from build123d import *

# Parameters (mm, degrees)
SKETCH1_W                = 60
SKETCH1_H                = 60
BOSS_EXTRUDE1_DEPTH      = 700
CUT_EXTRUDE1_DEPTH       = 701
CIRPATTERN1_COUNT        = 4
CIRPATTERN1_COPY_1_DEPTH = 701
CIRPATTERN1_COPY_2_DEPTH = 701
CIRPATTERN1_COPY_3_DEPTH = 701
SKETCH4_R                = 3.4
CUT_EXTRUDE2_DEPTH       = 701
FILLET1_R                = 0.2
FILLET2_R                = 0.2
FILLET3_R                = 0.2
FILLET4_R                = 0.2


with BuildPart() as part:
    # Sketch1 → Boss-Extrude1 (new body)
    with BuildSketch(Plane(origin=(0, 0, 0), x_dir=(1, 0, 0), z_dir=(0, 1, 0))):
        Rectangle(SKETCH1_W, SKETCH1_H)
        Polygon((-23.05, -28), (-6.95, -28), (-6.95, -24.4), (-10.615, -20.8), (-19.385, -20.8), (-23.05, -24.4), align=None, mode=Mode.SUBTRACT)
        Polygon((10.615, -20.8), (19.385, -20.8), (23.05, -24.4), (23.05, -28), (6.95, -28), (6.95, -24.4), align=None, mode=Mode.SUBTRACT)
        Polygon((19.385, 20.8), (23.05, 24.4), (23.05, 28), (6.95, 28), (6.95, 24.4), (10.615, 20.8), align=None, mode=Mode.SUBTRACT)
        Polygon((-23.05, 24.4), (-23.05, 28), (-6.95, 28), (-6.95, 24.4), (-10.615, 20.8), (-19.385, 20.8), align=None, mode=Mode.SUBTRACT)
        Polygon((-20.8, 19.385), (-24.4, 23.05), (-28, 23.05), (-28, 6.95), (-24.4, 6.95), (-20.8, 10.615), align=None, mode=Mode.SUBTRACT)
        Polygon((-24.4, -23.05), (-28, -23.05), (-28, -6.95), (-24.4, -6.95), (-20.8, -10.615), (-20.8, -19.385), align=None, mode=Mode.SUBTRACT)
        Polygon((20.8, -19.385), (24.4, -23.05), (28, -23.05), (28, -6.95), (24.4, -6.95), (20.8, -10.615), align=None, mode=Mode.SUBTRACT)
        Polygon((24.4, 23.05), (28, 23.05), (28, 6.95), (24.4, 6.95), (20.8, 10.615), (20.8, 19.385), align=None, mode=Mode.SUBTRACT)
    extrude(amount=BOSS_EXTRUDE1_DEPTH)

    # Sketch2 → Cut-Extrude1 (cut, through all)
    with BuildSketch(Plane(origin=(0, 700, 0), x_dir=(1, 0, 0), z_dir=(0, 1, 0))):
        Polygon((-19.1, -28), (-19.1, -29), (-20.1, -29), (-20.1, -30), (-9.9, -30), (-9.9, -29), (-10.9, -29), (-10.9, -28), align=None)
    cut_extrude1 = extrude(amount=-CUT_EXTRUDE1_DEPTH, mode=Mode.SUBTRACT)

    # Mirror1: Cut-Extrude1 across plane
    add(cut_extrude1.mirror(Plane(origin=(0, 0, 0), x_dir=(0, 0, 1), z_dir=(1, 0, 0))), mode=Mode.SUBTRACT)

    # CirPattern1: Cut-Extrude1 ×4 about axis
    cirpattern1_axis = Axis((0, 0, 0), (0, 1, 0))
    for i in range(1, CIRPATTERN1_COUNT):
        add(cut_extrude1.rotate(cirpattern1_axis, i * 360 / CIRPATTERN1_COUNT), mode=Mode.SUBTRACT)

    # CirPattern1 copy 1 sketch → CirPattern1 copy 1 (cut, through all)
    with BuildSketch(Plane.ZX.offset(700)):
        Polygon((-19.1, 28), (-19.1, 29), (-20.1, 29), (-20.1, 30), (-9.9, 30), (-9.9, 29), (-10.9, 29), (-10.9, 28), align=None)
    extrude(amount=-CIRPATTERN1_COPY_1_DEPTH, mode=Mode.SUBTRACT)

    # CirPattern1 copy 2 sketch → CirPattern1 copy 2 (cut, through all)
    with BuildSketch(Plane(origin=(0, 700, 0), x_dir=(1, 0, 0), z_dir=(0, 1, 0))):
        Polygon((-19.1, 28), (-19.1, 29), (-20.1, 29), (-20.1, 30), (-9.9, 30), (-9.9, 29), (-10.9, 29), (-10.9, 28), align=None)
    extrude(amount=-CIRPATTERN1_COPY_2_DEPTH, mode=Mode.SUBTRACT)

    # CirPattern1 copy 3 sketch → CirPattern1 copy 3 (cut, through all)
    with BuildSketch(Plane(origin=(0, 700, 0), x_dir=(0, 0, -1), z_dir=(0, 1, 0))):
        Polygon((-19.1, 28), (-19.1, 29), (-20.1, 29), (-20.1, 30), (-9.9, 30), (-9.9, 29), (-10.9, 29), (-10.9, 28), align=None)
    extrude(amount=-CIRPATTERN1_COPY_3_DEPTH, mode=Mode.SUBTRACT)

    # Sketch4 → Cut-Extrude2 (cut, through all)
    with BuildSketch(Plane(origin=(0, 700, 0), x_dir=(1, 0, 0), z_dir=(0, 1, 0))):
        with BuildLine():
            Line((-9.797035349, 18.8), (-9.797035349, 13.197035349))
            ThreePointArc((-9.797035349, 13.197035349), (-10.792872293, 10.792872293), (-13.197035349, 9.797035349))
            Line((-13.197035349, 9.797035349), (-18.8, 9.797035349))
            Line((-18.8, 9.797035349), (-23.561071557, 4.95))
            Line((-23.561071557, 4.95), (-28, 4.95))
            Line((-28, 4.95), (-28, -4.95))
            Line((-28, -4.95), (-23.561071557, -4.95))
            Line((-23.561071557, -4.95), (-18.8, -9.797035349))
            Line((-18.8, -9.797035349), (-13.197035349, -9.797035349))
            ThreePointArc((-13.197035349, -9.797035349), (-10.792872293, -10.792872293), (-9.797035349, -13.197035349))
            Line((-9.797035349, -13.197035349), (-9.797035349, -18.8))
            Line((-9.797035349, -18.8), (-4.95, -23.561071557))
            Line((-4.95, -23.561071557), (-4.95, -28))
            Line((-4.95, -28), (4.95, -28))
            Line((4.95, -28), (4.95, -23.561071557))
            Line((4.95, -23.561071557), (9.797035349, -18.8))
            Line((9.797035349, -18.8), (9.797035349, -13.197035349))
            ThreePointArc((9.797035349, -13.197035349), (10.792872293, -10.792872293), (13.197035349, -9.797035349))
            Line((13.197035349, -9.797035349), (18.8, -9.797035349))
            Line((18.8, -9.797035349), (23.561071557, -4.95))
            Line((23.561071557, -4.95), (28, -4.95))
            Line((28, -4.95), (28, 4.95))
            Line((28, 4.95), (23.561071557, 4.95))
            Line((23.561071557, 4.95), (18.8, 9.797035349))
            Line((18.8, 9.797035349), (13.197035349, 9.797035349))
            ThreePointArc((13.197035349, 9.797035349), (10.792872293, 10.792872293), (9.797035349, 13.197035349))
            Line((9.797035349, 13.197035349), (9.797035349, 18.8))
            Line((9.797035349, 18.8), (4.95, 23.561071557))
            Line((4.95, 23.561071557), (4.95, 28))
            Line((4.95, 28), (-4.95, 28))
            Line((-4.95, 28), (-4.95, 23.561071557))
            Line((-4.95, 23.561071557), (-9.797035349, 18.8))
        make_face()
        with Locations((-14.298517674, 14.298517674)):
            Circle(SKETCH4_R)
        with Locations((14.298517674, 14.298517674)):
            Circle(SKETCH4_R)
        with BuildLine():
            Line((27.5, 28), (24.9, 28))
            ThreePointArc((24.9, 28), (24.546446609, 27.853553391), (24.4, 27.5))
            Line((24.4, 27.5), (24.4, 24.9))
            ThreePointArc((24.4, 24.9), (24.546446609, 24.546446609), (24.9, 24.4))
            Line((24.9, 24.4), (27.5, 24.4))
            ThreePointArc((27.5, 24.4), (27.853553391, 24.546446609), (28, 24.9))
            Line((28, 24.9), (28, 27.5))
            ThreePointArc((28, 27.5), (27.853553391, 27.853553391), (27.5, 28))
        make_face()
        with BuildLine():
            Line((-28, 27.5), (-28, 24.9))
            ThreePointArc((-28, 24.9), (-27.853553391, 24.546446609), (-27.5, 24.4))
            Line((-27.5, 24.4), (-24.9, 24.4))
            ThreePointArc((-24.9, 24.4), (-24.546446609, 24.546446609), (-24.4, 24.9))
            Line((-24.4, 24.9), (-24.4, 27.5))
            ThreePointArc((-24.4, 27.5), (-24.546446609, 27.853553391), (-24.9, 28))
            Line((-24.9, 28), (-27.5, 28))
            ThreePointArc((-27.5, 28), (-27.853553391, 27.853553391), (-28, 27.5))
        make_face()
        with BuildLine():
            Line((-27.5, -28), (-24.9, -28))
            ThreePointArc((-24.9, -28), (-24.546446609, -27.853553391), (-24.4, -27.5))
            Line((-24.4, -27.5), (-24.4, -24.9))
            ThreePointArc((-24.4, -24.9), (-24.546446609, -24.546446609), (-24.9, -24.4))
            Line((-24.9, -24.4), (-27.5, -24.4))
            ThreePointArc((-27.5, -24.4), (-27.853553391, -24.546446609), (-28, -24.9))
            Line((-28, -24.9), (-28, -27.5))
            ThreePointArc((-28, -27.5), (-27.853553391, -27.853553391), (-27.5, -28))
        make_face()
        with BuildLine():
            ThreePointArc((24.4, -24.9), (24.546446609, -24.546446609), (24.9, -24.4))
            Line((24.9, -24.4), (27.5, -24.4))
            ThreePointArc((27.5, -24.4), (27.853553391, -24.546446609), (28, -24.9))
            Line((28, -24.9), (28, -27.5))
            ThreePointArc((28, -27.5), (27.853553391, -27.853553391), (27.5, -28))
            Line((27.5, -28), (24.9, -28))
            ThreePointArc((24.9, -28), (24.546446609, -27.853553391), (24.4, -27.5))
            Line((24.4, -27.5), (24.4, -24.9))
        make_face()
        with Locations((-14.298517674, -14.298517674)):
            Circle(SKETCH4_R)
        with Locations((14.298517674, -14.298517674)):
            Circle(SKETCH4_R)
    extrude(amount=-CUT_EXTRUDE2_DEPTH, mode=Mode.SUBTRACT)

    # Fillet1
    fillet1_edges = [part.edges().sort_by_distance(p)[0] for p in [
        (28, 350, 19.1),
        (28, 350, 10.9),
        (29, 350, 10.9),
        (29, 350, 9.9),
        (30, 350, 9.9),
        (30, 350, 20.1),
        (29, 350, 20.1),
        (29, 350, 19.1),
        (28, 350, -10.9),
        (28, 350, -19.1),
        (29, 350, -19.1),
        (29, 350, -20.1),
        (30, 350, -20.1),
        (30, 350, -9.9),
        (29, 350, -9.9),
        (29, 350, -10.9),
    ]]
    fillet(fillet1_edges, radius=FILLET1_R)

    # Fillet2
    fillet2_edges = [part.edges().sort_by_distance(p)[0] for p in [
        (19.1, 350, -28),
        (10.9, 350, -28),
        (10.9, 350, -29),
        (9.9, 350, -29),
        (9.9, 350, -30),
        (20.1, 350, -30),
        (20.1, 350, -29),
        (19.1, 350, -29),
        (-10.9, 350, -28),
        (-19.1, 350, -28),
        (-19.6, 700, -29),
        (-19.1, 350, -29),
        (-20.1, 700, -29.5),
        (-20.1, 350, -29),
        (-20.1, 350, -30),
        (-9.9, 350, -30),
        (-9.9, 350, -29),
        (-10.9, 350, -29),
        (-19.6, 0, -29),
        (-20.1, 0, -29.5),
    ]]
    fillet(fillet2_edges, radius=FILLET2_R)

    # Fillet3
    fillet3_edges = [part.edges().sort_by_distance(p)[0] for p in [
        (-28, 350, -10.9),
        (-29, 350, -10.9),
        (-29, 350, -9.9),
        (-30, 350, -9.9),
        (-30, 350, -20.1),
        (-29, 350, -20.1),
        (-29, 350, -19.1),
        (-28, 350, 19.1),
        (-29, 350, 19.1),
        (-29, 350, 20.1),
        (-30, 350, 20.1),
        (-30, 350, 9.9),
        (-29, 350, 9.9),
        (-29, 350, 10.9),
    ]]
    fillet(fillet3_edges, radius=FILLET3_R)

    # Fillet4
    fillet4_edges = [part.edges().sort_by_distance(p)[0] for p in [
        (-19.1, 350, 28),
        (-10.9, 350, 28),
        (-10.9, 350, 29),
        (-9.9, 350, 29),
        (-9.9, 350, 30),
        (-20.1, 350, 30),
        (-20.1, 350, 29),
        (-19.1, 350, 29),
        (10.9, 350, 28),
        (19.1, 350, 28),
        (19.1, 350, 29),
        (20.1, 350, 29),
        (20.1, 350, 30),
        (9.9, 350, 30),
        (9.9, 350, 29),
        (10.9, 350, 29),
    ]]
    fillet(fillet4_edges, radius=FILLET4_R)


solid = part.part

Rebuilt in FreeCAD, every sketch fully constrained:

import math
import FreeCAD as App
import Part
import Sketcher

V = App.Vector


def edges_at(feature, points):
    """Names of the edges that pass closest to the given points."""
    edges = feature.Shape.Edges
    near = lambda p: min(range(len(edges)), key=lambda i: edges[i].distToShape(Part.Vertex(*p))[0])
    return sorted({f"Edge{near(p) + 1}" for p in points})

doc = App.newDocument("Part")
body = doc.addObject("PartDesign::Body", "Body")

sketch1 = body.newObject("Sketcher::SketchObject", "Sketch")
sketch1.AttachmentSupport = (doc.getObject("XZ_Plane"), [""])
sketch1.MapMode = "FlatFace"
sketch1.addGeometry(Part.LineSegment(V(-30, -30, 0), V(-30, 30, 0)), False)
sketch1.addGeometry(Part.LineSegment(V(-30, 30, 0), V(30, 30, 0)), False)
sketch1.addGeometry(Part.LineSegment(V(30, 30, 0), V(30, -30, 0)), False)
sketch1.addGeometry(Part.LineSegment(V(30, -30, 0), V(-30, -30, 0)), False)
sketch1.addGeometry(Part.LineSegment(V(-6.95, 28, 0), V(-23.05, 28, 0)), False)
sketch1.addGeometry(Part.LineSegment(V(-23.05, 28, 0), V(-23.05, 24.4, 0)), False)
sketch1.addGeometry(Part.LineSegment(V(-23.05, 24.4, 0), V(-19.385, 20.8, 0)), False)
sketch1.addGeometry(Part.LineSegment(V(-19.385, 20.8, 0), V(-10.615, 20.8, 0)), False)
sketch1.addGeometry(Part.LineSegment(V(-10.615, 20.8, 0), V(-6.95, 24.4, 0)), False)
sketch1.addGeometry(Part.LineSegment(V(-6.95, 24.4, 0), V(-6.95, 28, 0)), False)
sketch1.addGeometry(Part.LineSegment(V(-20.8, 19.385, 0), V(-24.4, 23.05, 0)), False)
sketch1.addGeometry(Part.LineSegment(V(-24.4, 23.05, 0), V(-28, 23.05, 0)), False)
sketch1.addGeometry(Part.LineSegment(V(-28, 23.05, 0), V(-28, 6.95, 0)), False)
sketch1.addGeometry(Part.LineSegment(V(-28, 6.95, 0), V(-24.4, 6.95, 0)), False)
sketch1.addGeometry(Part.LineSegment(V(-24.4, 6.95, 0), V(-20.8, 10.615, 0)), False)
sketch1.addGeometry(Part.LineSegment(V(-20.8, 10.615, 0), V(-20.8, 19.385, 0)), False)
sketch1.addGeometry(Part.LineSegment(V(6.95, 24.4, 0), V(10.615, 20.8, 0)), False)
sketch1.addGeometry(Part.LineSegment(V(10.615, 20.8, 0), V(19.385, 20.8, 0)), False)
sketch1.addGeometry(Part.LineSegment(V(19.385, 20.8, 0), V(23.05, 24.4, 0)), False)
sketch1.addGeometry(Part.LineSegment(V(23.05, 24.4, 0), V(23.05, 28, 0)), False)
sketch1.addGeometry(Part.LineSegment(V(23.05, 28, 0), V(6.95, 28, 0)), False)
sketch1.addGeometry(Part.LineSegment(V(6.95, 28, 0), V(6.95, 24.4, 0)), False)
sketch1.addGeometry(Part.LineSegment(V(24.4, 23.05, 0), V(20.8, 19.385, 0)), False)
sketch1.addGeometry(Part.LineSegment(V(20.8, 19.385, 0), V(20.8, 10.615, 0)), False)
sketch1.addGeometry(Part.LineSegment(V(20.8, 10.615, 0), V(24.4, 6.95, 0)), False)
sketch1.addGeometry(Part.LineSegment(V(24.4, 6.95, 0), V(28, 6.95, 0)), False)
sketch1.addGeometry(Part.LineSegment(V(28, 6.95, 0), V(28, 23.05, 0)), False)
sketch1.addGeometry(Part.LineSegment(V(28, 23.05, 0), V(24.4, 23.05, 0)), False)
sketch1.addGeometry(Part.LineSegment(V(-24.4, -23.05, 0), V(-20.8, -19.385, 0)), False)
sketch1.addGeometry(Part.LineSegment(V(-20.8, -19.385, 0), V(-20.8, -10.615, 0)), False)
sketch1.addGeometry(Part.LineSegment(V(-20.8, -10.615, 0), V(-24.4, -6.95, 0)), False)
sketch1.addGeometry(Part.LineSegment(V(-24.4, -6.95, 0), V(-28, -6.95, 0)), False)
sketch1.addGeometry(Part.LineSegment(V(-28, -6.95, 0), V(-28, -23.05, 0)), False)
sketch1.addGeometry(Part.LineSegment(V(-28, -23.05, 0), V(-24.4, -23.05, 0)), False)
sketch1.addGeometry(Part.LineSegment(V(-19.385, -20.8, 0), V(-23.05, -24.4, 0)), False)
sketch1.addGeometry(Part.LineSegment(V(-23.05, -24.4, 0), V(-23.05, -28, 0)), False)
sketch1.addGeometry(Part.LineSegment(V(-23.05, -28, 0), V(-6.95, -28, 0)), False)
sketch1.addGeometry(Part.LineSegment(V(-6.95, -28, 0), V(-6.95, -24.4, 0)), False)
sketch1.addGeometry(Part.LineSegment(V(-6.95, -24.4, 0), V(-10.615, -20.8, 0)), False)
sketch1.addGeometry(Part.LineSegment(V(-10.615, -20.8, 0), V(-19.385, -20.8, 0)), False)
sketch1.addGeometry(Part.LineSegment(V(20.8, -19.385, 0), V(24.4, -23.05, 0)), False)
sketch1.addGeometry(Part.LineSegment(V(24.4, -23.05, 0), V(28, -23.05, 0)), False)
sketch1.addGeometry(Part.LineSegment(V(28, -23.05, 0), V(28, -6.95, 0)), False)
sketch1.addGeometry(Part.LineSegment(V(28, -6.95, 0), V(24.4, -6.95, 0)), False)
sketch1.addGeometry(Part.LineSegment(V(24.4, -6.95, 0), V(20.8, -10.615, 0)), False)
sketch1.addGeometry(Part.LineSegment(V(20.8, -10.615, 0), V(20.8, -19.385, 0)), False)
sketch1.addGeometry(Part.LineSegment(V(23.05, -24.4, 0), V(19.385, -20.8, 0)), False)
sketch1.addGeometry(Part.LineSegment(V(19.385, -20.8, 0), V(10.615, -20.8, 0)), False)
sketch1.addGeometry(Part.LineSegment(V(10.615, -20.8, 0), V(6.95, -24.4, 0)), False)
sketch1.addGeometry(Part.LineSegment(V(6.95, -24.4, 0), V(6.95, -28, 0)), False)
sketch1.addGeometry(Part.LineSegment(V(6.95, -28, 0), V(23.05, -28, 0)), False)
sketch1.addGeometry(Part.LineSegment(V(23.05, -28, 0), V(23.05, -24.4, 0)), False)
sketch1.addConstraint(Sketcher.Constraint("Coincident", 0, 2, 1, 1))
sketch1.addConstraint(Sketcher.Constraint("Coincident", 1, 2, 2, 1))
sketch1.addConstraint(Sketcher.Constraint("Coincident", 2, 2, 3, 1))
sketch1.addConstraint(Sketcher.Constraint("Coincident", 3, 2, 0, 1))
sketch1.addConstraint(Sketcher.Constraint("Coincident", 4, 2, 5, 1))
sketch1.addConstraint(Sketcher.Constraint("Coincident", 5, 2, 6, 1))
sketch1.addConstraint(Sketcher.Constraint("Coincident", 6, 2, 7, 1))
sketch1.addConstraint(Sketcher.Constraint("Coincident", 7, 2, 8, 1))
sketch1.addConstraint(Sketcher.Constraint("Coincident", 8, 2, 9, 1))
sketch1.addConstraint(Sketcher.Constraint("Coincident", 9, 2, 4, 1))
sketch1.addConstraint(Sketcher.Constraint("Coincident", 10, 2, 11, 1))
sketch1.addConstraint(Sketcher.Constraint("Coincident", 11, 2, 12, 1))
sketch1.addConstraint(Sketcher.Constraint("Coincident", 12, 2, 13, 1))
sketch1.addConstraint(Sketcher.Constraint("Coincident", 13, 2, 14, 1))
sketch1.addConstraint(Sketcher.Constraint("Coincident", 14, 2, 15, 1))
sketch1.addConstraint(Sketcher.Constraint("Coincident", 15, 2, 10, 1))
sketch1.addConstraint(Sketcher.Constraint("Coincident", 16, 2, 17, 1))
sketch1.addConstraint(Sketcher.Constraint("Coincident", 17, 2, 18, 1))
sketch1.addConstraint(Sketcher.Constraint("Coincident", 18, 2, 19, 1))
sketch1.addConstraint(Sketcher.Constraint("Coincident", 19, 2, 20, 1))
sketch1.addConstraint(Sketcher.Constraint("Coincident", 20, 2, 21, 1))
sketch1.addConstraint(Sketcher.Constraint("Coincident", 21, 2, 16, 1))
sketch1.addConstraint(Sketcher.Constraint("Coincident", 22, 2, 23, 1))
sketch1.addConstraint(Sketcher.Constraint("Coincident", 23, 2, 24, 1))
sketch1.addConstraint(Sketcher.Constraint("Coincident", 24, 2, 25, 1))
sketch1.addConstraint(Sketcher.Constraint("Coincident", 25, 2, 26, 1))
sketch1.addConstraint(Sketcher.Constraint("Coincident", 26, 2, 27, 1))
sketch1.addConstraint(Sketcher.Constraint("Coincident", 27, 2, 22, 1))
sketch1.addConstraint(Sketcher.Constraint("Coincident", 28, 2, 29, 1))
sketch1.addConstraint(Sketcher.Constraint("Coincident", 29, 2, 30, 1))
sketch1.addConstraint(Sketcher.Constraint("Coincident", 30, 2, 31, 1))
sketch1.addConstraint(Sketcher.Constraint("Coincident", 31, 2, 32, 1))
sketch1.addConstraint(Sketcher.Constraint("Coincident", 32, 2, 33, 1))
sketch1.addConstraint(Sketcher.Constraint("Coincident", 33, 2, 28, 1))
sketch1.addConstraint(Sketcher.Constraint("Coincident", 34, 2, 35, 1))
sketch1.addConstraint(Sketcher.Constraint("Coincident", 35, 2, 36, 1))
sketch1.addConstraint(Sketcher.Constraint("Coincident", 36, 2, 37, 1))
sketch1.addConstraint(Sketcher.Constraint("Coincident", 37, 2, 38, 1))
sketch1.addConstraint(Sketcher.Constraint("Coincident", 38, 2, 39, 1))
sketch1.addConstraint(Sketcher.Constraint("Coincident", 39, 2, 34, 1))
sketch1.addConstraint(Sketcher.Constraint("Coincident", 40, 2, 41, 1))
sketch1.addConstraint(Sketcher.Constraint("Coincident", 41, 2, 42, 1))
sketch1.addConstraint(Sketcher.Constraint("Coincident", 42, 2, 43, 1))
sketch1.addConstraint(Sketcher.Constraint("Coincident", 43, 2, 44, 1))
sketch1.addConstraint(Sketcher.Constraint("Coincident", 44, 2, 45, 1))
sketch1.addConstraint(Sketcher.Constraint("Coincident", 45, 2, 40, 1))
sketch1.addConstraint(Sketcher.Constraint("Coincident", 46, 2, 47, 1))
sketch1.addConstraint(Sketcher.Constraint("Coincident", 47, 2, 48, 1))
sketch1.addConstraint(Sketcher.Constraint("Coincident", 48, 2, 49, 1))
sketch1.addConstraint(Sketcher.Constraint("Coincident", 49, 2, 50, 1))
sketch1.addConstraint(Sketcher.Constraint("Coincident", 50, 2, 51, 1))
sketch1.addConstraint(Sketcher.Constraint("Coincident", 51, 2, 46, 1))
sketch1.addConstraint(Sketcher.Constraint("Vertical", 0))
sketch1.addConstraint(Sketcher.Constraint("Horizontal", 1))
sketch1.addConstraint(Sketcher.Constraint("Vertical", 2))
sketch1.addConstraint(Sketcher.Constraint("Horizontal", 3))
sketch1.addConstraint(Sketcher.Constraint("Horizontal", 4))
sketch1.addConstraint(Sketcher.Constraint("Vertical", 5))
sketch1.addConstraint(Sketcher.Constraint("Horizontal", 7))
sketch1.addConstraint(Sketcher.Constraint("Vertical", 9))
sketch1.addConstraint(Sketcher.Constraint("Horizontal", 11))
sketch1.addConstraint(Sketcher.Constraint("Vertical", 12))
sketch1.addConstraint(Sketcher.Constraint("Horizontal", 13))
sketch1.addConstraint(Sketcher.Constraint("Vertical", 15))
sketch1.addConstraint(Sketcher.Constraint("Horizontal", 17))
sketch1.addConstraint(Sketcher.Constraint("Vertical", 19))
sketch1.addConstraint(Sketcher.Constraint("Horizontal", 20))
sketch1.addConstraint(Sketcher.Constraint("Vertical", 21))
sketch1.addConstraint(Sketcher.Constraint("Vertical", 23))
sketch1.addConstraint(Sketcher.Constraint("Horizontal", 25))
sketch1.addConstraint(Sketcher.Constraint("Vertical", 26))
sketch1.addConstraint(Sketcher.Constraint("Horizontal", 27))
sketch1.addConstraint(Sketcher.Constraint("Vertical", 29))
sketch1.addConstraint(Sketcher.Constraint("Horizontal", 31))
sketch1.addConstraint(Sketcher.Constraint("Vertical", 32))
sketch1.addConstraint(Sketcher.Constraint("Horizontal", 33))
sketch1.addConstraint(Sketcher.Constraint("Vertical", 35))
sketch1.addConstraint(Sketcher.Constraint("Horizontal", 36))
sketch1.addConstraint(Sketcher.Constraint("Vertical", 37))
sketch1.addConstraint(Sketcher.Constraint("Horizontal", 39))
sketch1.addConstraint(Sketcher.Constraint("Horizontal", 41))
sketch1.addConstraint(Sketcher.Constraint("Vertical", 42))
sketch1.addConstraint(Sketcher.Constraint("Horizontal", 43))
sketch1.addConstraint(Sketcher.Constraint("Vertical", 45))
sketch1.addConstraint(Sketcher.Constraint("Horizontal", 47))
sketch1.addConstraint(Sketcher.Constraint("Vertical", 49))
sketch1.addConstraint(Sketcher.Constraint("Horizontal", 50))
sketch1.addConstraint(Sketcher.Constraint("Vertical", 51))
sketch1.addConstraint(Sketcher.Constraint("Symmetric", 0, 2, 2, 2, -1, 1))
sketch1.addConstraint(Sketcher.Constraint("Symmetric", 22, 2, 28, 2, -1, 1))
sketch1.addConstraint(Sketcher.Constraint("Symmetric", 24, 2, 30, 2, -1, 1))
sketch1.addConstraint(Sketcher.Constraint("Symmetric", 26, 2, 32, 2, -1, 1))
sketch1.addConstraint(Sketcher.Constraint("Symmetric", 18, 2, 34, 2, -1, 1))
sketch1.addConstraint(Sketcher.Constraint("Symmetric", 20, 2, 36, 2, -1, 1))
sketch1.addConstraint(Sketcher.Constraint("Symmetric", 16, 2, 38, 2, -1, 1))
sketch1.addConstraint(Sketcher.Constraint("Symmetric", 10, 2, 40, 2, -1, 1))
sketch1.addConstraint(Sketcher.Constraint("Symmetric", 12, 2, 42, 2, -1, 1))
sketch1.addConstraint(Sketcher.Constraint("Symmetric", 14, 2, 44, 2, -1, 1))
sketch1.addConstraint(Sketcher.Constraint("Symmetric", 6, 2, 46, 2, -1, 1))
sketch1.addConstraint(Sketcher.Constraint("Symmetric", 8, 2, 48, 2, -1, 1))
sketch1.addConstraint(Sketcher.Constraint("Symmetric", 4, 2, 50, 2, -1, 1))
sketch1.addConstraint(Sketcher.Constraint("Symmetric", 7, 2, 16, 2, -2))
sketch1.addConstraint(Sketcher.Constraint("Symmetric", 5, 2, 18, 2, -2))
sketch1.addConstraint(Sketcher.Constraint("Symmetric", 9, 2, 20, 2, -2))
sketch1.addConstraint(Sketcher.Constraint("Symmetric", 15, 2, 22, 2, -2))
sketch1.addConstraint(Sketcher.Constraint("Symmetric", 13, 2, 24, 2, -2))
sketch1.addConstraint(Sketcher.Constraint("Symmetric", 11, 2, 26, 2, -2))
sketch1.addConstraint(Sketcher.Constraint("Perpendicular", 8, 10))
sketch1.addConstraint(Sketcher.Constraint("Perpendicular", 6, 14))
sketch1.addConstraint(Sketcher.Constraint("Perpendicular", 14, 16))
sketch1.addConstraint(Sketcher.Constraint("Perpendicular", 10, 18))
sketch1.addConstraint(Sketcher.Constraint("Perpendicular", 16, 22))
sketch1.addConstraint(Sketcher.Constraint("Perpendicular", 18, 24))
sketch1.addConstraint(Sketcher.Constraint("Parallel", 22, 28))
sketch1.addConstraint(Sketcher.Constraint("Parallel", 24, 30))
sketch1.addConstraint(Sketcher.Constraint("Perpendicular", 30, 34))
sketch1.addConstraint(Sketcher.Constraint("Perpendicular", 28, 38))
sketch1.addConstraint(Sketcher.Constraint("Perpendicular", 34, 40))
sketch1.addConstraint(Sketcher.Constraint("Perpendicular", 38, 44))
sketch1.addConstraint(Sketcher.Constraint("Perpendicular", 44, 46))
sketch1.addConstraint(Sketcher.Constraint("Perpendicular", 40, 48))
sketch1.addConstraint(Sketcher.Constraint("Horizontal", 5, 2, 8, 2))
sketch1.addConstraint(Sketcher.Constraint("Horizontal", 18, 2, 21, 2))
sketch1.addConstraint(Sketcher.Constraint("Vertical", 10, 2, 13, 2))
sketch1.addConstraint(Sketcher.Constraint("Equal", 3, 0))
sketch1.addConstraint(Sketcher.Constraint("Equal", 43, 5))
sketch1.addConstraint(Sketcher.Constraint("Equal", 50, 12))
sketch1.addConstraint(Sketcher.Constraint("Equal", 47, 15))
sketch1.addConstraint(Sketcher.Constraint("DistanceX", 1, 1, 1, 2, 60.0))
sketch1.addConstraint(Sketcher.Constraint("DistanceX", 4, 2, 4, 1, 16.1))
sketch1.addConstraint(Sketcher.Constraint("DistanceX", 11, 2, 11, 1, 3.6))
sketch1.addConstraint(Sketcher.Constraint("DistanceY", -1, 1, 4, 2, 28.0))
sketch1.addConstraint(Sketcher.Constraint("DistanceX", 11, 2, -1, 1, 28.0))
sketch1.addConstraint(Sketcher.Constraint("DistanceX", 6, 2, 16, 2, 30.0))
sketch1.addConstraint(Sketcher.Constraint("DistanceY", 28, 2, 14, 2, 30.0))
sketch1.addConstraint(Sketcher.Constraint("DistanceX", 7, 1, 7, 2, 8.77))
sketch1.addConstraint(Sketcher.Constraint("DistanceY", -1, 1, 6, 2, 20.8))
pad1 = body.newObject("PartDesign::Pad", "Pad")
pad1.Profile = sketch1
pad1.Length = 700
pad1.Reversed = True

sketch2 = body.newObject("Sketcher::SketchObject", "Sketch001")
sketch2.AttachmentSupport = (doc.getObject("XZ_Plane"), [""])
sketch2.MapMode = "FlatFace"
sketch2.AttachmentOffset = App.Placement(V(0, 0, -700), App.Rotation())
sketch2.addGeometry(Part.LineSegment(V(-19.1, 28, 0), V(-19.1, 29, 0)), False)
sketch2.addGeometry(Part.LineSegment(V(-19.1, 29, 0), V(-20.1, 29, 0)), False)
sketch2.addGeometry(Part.LineSegment(V(-20.1, 29, 0), V(-20.1, 30, 0)), False)
sketch2.addGeometry(Part.LineSegment(V(-20.1, 30, 0), V(-9.9, 30, 0)), False)
sketch2.addGeometry(Part.LineSegment(V(-9.9, 30, 0), V(-9.9, 29, 0)), False)
sketch2.addGeometry(Part.LineSegment(V(-9.9, 29, 0), V(-10.9, 29, 0)), False)
sketch2.addGeometry(Part.LineSegment(V(-10.9, 29, 0), V(-10.9, 28, 0)), False)
sketch2.addGeometry(Part.LineSegment(V(-10.9, 28, 0), V(-19.1, 28, 0)), False)
sketch2.addConstraint(Sketcher.Constraint("Coincident", 0, 2, 1, 1))
sketch2.addConstraint(Sketcher.Constraint("Coincident", 1, 2, 2, 1))
sketch2.addConstraint(Sketcher.Constraint("Coincident", 2, 2, 3, 1))
sketch2.addConstraint(Sketcher.Constraint("Coincident", 3, 2, 4, 1))
sketch2.addConstraint(Sketcher.Constraint("Coincident", 4, 2, 5, 1))
sketch2.addConstraint(Sketcher.Constraint("Coincident", 5, 2, 6, 1))
sketch2.addConstraint(Sketcher.Constraint("Coincident", 6, 2, 7, 1))
sketch2.addConstraint(Sketcher.Constraint("Coincident", 7, 2, 0, 1))
sketch2.addConstraint(Sketcher.Constraint("Vertical", 0))
sketch2.addConstraint(Sketcher.Constraint("Horizontal", 1))
sketch2.addConstraint(Sketcher.Constraint("Vertical", 2))
sketch2.addConstraint(Sketcher.Constraint("Horizontal", 3))
sketch2.addConstraint(Sketcher.Constraint("Vertical", 4))
sketch2.addConstraint(Sketcher.Constraint("Horizontal", 5))
sketch2.addConstraint(Sketcher.Constraint("Vertical", 6))
sketch2.addConstraint(Sketcher.Constraint("Horizontal", 7))
sketch2.addConstraint(Sketcher.Constraint("Horizontal", 1, 2, 4, 2))
sketch2.addConstraint(Sketcher.Constraint("Equal", 1, 5))
sketch2.addConstraint(Sketcher.Constraint("Equal", 5, 0))
sketch2.addConstraint(Sketcher.Constraint("Equal", 0, 2))
sketch2.addConstraint(Sketcher.Constraint("DistanceX", 1, 2, 1, 1, 1.0))
sketch2.addConstraint(Sketcher.Constraint("DistanceX", 3, 1, 3, 2, 10.2))
sketch2.addConstraint(Sketcher.Constraint("DistanceY", -1, 1, 0, 2, 29.0))
sketch2.addConstraint(Sketcher.Constraint("DistanceX", 0, 2, -1, 1, 19.1))
pocket1 = body.newObject("PartDesign::Pocket", "Pocket")
pocket1.Profile = sketch2
pocket1.Type = "ThroughAll"
pocket1.Reversed = True
doc.recompute()

mirrored = body.newObject("PartDesign::Mirrored", "Mirrored")
mirrored.Originals = [pocket1]
mirrored.MirrorPlane = (doc.getObject("YZ_Plane"), [""])
body.Tip = mirrored
doc.recompute()

polarpattern = body.newObject("PartDesign::PolarPattern", "PolarPattern")
polarpattern.Originals = [pocket1]
polarpattern.Axis = (doc.getObject("Y_Axis"), [""])
polarpattern.Angle = 360
polarpattern.Occurrences = 4
body.Tip = polarpattern

sketch3 = body.newObject("Sketcher::SketchObject", "Sketch002")
sketch3.AttachmentSupport = (doc.getObject("XZ_Plane"), [""])
sketch3.MapMode = "FlatFace"
sketch3.AttachmentOffset = App.Placement(V(0, 0, -700), App.Rotation())
sketch3.addGeometry(Part.LineSegment(V(29, -19.1, 0), V(28, -19.1, 0)), False)
sketch3.addGeometry(Part.LineSegment(V(28, -19.1, 0), V(28, -10.9, 0)), False)
sketch3.addGeometry(Part.LineSegment(V(28, -10.9, 0), V(29, -10.9, 0)), False)
sketch3.addGeometry(Part.LineSegment(V(29, -10.9, 0), V(29, -9.9, 0)), False)
sketch3.addGeometry(Part.LineSegment(V(29, -9.9, 0), V(30, -9.9, 0)), False)
sketch3.addGeometry(Part.LineSegment(V(30, -9.9, 0), V(30, -20.1, 0)), False)
sketch3.addGeometry(Part.LineSegment(V(30, -20.1, 0), V(29, -20.1, 0)), False)
sketch3.addGeometry(Part.LineSegment(V(29, -20.1, 0), V(29, -19.1, 0)), False)
sketch3.addConstraint(Sketcher.Constraint("Coincident", 0, 2, 1, 1))
sketch3.addConstraint(Sketcher.Constraint("Coincident", 1, 2, 2, 1))
sketch3.addConstraint(Sketcher.Constraint("Coincident", 2, 2, 3, 1))
sketch3.addConstraint(Sketcher.Constraint("Coincident", 3, 2, 4, 1))
sketch3.addConstraint(Sketcher.Constraint("Coincident", 4, 2, 5, 1))
sketch3.addConstraint(Sketcher.Constraint("Coincident", 5, 2, 6, 1))
sketch3.addConstraint(Sketcher.Constraint("Coincident", 6, 2, 7, 1))
sketch3.addConstraint(Sketcher.Constraint("Coincident", 7, 2, 0, 1))
sketch3.addConstraint(Sketcher.Constraint("Horizontal", 0))
sketch3.addConstraint(Sketcher.Constraint("Vertical", 1))
sketch3.addConstraint(Sketcher.Constraint("Horizontal", 2))
sketch3.addConstraint(Sketcher.Constraint("Vertical", 3))
sketch3.addConstraint(Sketcher.Constraint("Horizontal", 4))
sketch3.addConstraint(Sketcher.Constraint("Vertical", 5))
sketch3.addConstraint(Sketcher.Constraint("Horizontal", 6))
sketch3.addConstraint(Sketcher.Constraint("Vertical", 7))
sketch3.addConstraint(Sketcher.Constraint("Vertical", 3, 2, 6, 2))
sketch3.addConstraint(Sketcher.Constraint("Equal", 2, 4))
sketch3.addConstraint(Sketcher.Constraint("Equal", 6, 3))
sketch3.addConstraint(Sketcher.Constraint("Equal", 3, 7))
sketch3.addConstraint(Sketcher.Constraint("DistanceX", 0, 2, 0, 1, 1.0))
sketch3.addConstraint(Sketcher.Constraint("DistanceY", 1, 1, 1, 2, 8.2))
sketch3.addConstraint(Sketcher.Constraint("DistanceX", -1, 1, 0, 2, 28.0))
sketch3.addConstraint(Sketcher.Constraint("DistanceY", 0, 2, -1, 1, 19.1))
pocket2 = body.newObject("PartDesign::Pocket", "Pocket001")
pocket2.Profile = sketch3
pocket2.Type = "ThroughAll"
pocket2.Reversed = True

sketch4 = body.newObject("Sketcher::SketchObject", "Sketch003")
sketch4.AttachmentSupport = (doc.getObject("XZ_Plane"), [""])
sketch4.MapMode = "FlatFace"
sketch4.AttachmentOffset = App.Placement(V(0, 0, -700), App.Rotation())
sketch4.addGeometry(Part.LineSegment(V(-19.1, -29, 0), V(-19.1, -28, 0)), False)
sketch4.addGeometry(Part.LineSegment(V(-19.1, -28, 0), V(-10.9, -28, 0)), False)
sketch4.addGeometry(Part.LineSegment(V(-10.9, -28, 0), V(-10.9, -29, 0)), False)
sketch4.addGeometry(Part.LineSegment(V(-10.9, -29, 0), V(-9.9, -29, 0)), False)
sketch4.addGeometry(Part.LineSegment(V(-9.9, -29, 0), V(-9.9, -30, 0)), False)
sketch4.addGeometry(Part.LineSegment(V(-9.9, -30, 0), V(-20.1, -30, 0)), False)
sketch4.addGeometry(Part.LineSegment(V(-20.1, -30, 0), V(-20.1, -29, 0)), False)
sketch4.addGeometry(Part.LineSegment(V(-20.1, -29, 0), V(-19.1, -29, 0)), False)
sketch4.addConstraint(Sketcher.Constraint("Coincident", 0, 2, 1, 1))
sketch4.addConstraint(Sketcher.Constraint("Coincident", 1, 2, 2, 1))
sketch4.addConstraint(Sketcher.Constraint("Coincident", 2, 2, 3, 1))
sketch4.addConstraint(Sketcher.Constraint("Coincident", 3, 2, 4, 1))
sketch4.addConstraint(Sketcher.Constraint("Coincident", 4, 2, 5, 1))
sketch4.addConstraint(Sketcher.Constraint("Coincident", 5, 2, 6, 1))
sketch4.addConstraint(Sketcher.Constraint("Coincident", 6, 2, 7, 1))
sketch4.addConstraint(Sketcher.Constraint("Coincident", 7, 2, 0, 1))
sketch4.addConstraint(Sketcher.Constraint("Vertical", 0))
sketch4.addConstraint(Sketcher.Constraint("Horizontal", 1))
sketch4.addConstraint(Sketcher.Constraint("Vertical", 2))
sketch4.addConstraint(Sketcher.Constraint("Horizontal", 3))
sketch4.addConstraint(Sketcher.Constraint("Vertical", 4))
sketch4.addConstraint(Sketcher.Constraint("Horizontal", 5))
sketch4.addConstraint(Sketcher.Constraint("Vertical", 6))
sketch4.addConstraint(Sketcher.Constraint("Horizontal", 7))
sketch4.addConstraint(Sketcher.Constraint("Horizontal", 3, 2, 6, 2))
sketch4.addConstraint(Sketcher.Constraint("Equal", 3, 7))
sketch4.addConstraint(Sketcher.Constraint("Equal", 7, 0))
sketch4.addConstraint(Sketcher.Constraint("Equal", 2, 4))
sketch4.addConstraint(Sketcher.Constraint("DistanceX", 3, 1, 3, 2, 1.0))
sketch4.addConstraint(Sketcher.Constraint("DistanceX", 1, 1, 1, 2, 8.2))
sketch4.addConstraint(Sketcher.Constraint("DistanceY", 0, 2, -1, 1, 28.0))
sketch4.addConstraint(Sketcher.Constraint("DistanceX", 0, 2, -1, 1, 19.1))
pocket3 = body.newObject("PartDesign::Pocket", "Pocket002")
pocket3.Profile = sketch4
pocket3.Type = "ThroughAll"
pocket3.Reversed = True

sketch5 = body.newObject("Sketcher::SketchObject", "Sketch004")
sketch5.AttachmentSupport = (doc.getObject("XZ_Plane"), [""])
sketch5.MapMode = "FlatFace"
sketch5.AttachmentOffset = App.Placement(V(0, 0, -700), App.Rotation())
sketch5.addGeometry(Part.LineSegment(V(-29, 19.1, 0), V(-28, 19.1, 0)), False)
sketch5.addGeometry(Part.LineSegment(V(-28, 19.1, 0), V(-28, 10.9, 0)), False)
sketch5.addGeometry(Part.LineSegment(V(-28, 10.9, 0), V(-29, 10.9, 0)), False)
sketch5.addGeometry(Part.LineSegment(V(-29, 10.9, 0), V(-29, 9.9, 0)), False)
sketch5.addGeometry(Part.LineSegment(V(-29, 9.9, 0), V(-30, 9.9, 0)), False)
sketch5.addGeometry(Part.LineSegment(V(-30, 9.9, 0), V(-30, 20.1, 0)), False)
sketch5.addGeometry(Part.LineSegment(V(-30, 20.1, 0), V(-29, 20.1, 0)), False)
sketch5.addGeometry(Part.LineSegment(V(-29, 20.1, 0), V(-29, 19.1, 0)), False)
sketch5.addConstraint(Sketcher.Constraint("Coincident", 0, 2, 1, 1))
sketch5.addConstraint(Sketcher.Constraint("Coincident", 1, 2, 2, 1))
sketch5.addConstraint(Sketcher.Constraint("Coincident", 2, 2, 3, 1))
sketch5.addConstraint(Sketcher.Constraint("Coincident", 3, 2, 4, 1))
sketch5.addConstraint(Sketcher.Constraint("Coincident", 4, 2, 5, 1))
sketch5.addConstraint(Sketcher.Constraint("Coincident", 5, 2, 6, 1))
sketch5.addConstraint(Sketcher.Constraint("Coincident", 6, 2, 7, 1))
sketch5.addConstraint(Sketcher.Constraint("Coincident", 7, 2, 0, 1))
sketch5.addConstraint(Sketcher.Constraint("Horizontal", 0))
sketch5.addConstraint(Sketcher.Constraint("Vertical", 1))
sketch5.addConstraint(Sketcher.Constraint("Horizontal", 2))
sketch5.addConstraint(Sketcher.Constraint("Vertical", 3))
sketch5.addConstraint(Sketcher.Constraint("Horizontal", 4))
sketch5.addConstraint(Sketcher.Constraint("Vertical", 5))
sketch5.addConstraint(Sketcher.Constraint("Horizontal", 6))
sketch5.addConstraint(Sketcher.Constraint("Vertical", 7))
sketch5.addConstraint(Sketcher.Constraint("Vertical", 3, 2, 6, 2))
sketch5.addConstraint(Sketcher.Constraint("Equal", 2, 4))
sketch5.addConstraint(Sketcher.Constraint("Equal", 6, 3))
sketch5.addConstraint(Sketcher.Constraint("Equal", 3, 7))
sketch5.addConstraint(Sketcher.Constraint("DistanceX", 0, 1, 0, 2, 1.0))
sketch5.addConstraint(Sketcher.Constraint("DistanceY", 1, 2, 1, 1, 8.2))
sketch5.addConstraint(Sketcher.Constraint("DistanceX", 0, 2, -1, 1, 28.0))
sketch5.addConstraint(Sketcher.Constraint("DistanceY", -1, 1, 0, 2, 19.1))
pocket4 = body.newObject("PartDesign::Pocket", "Pocket003")
pocket4.Profile = sketch5
pocket4.Type = "ThroughAll"
pocket4.Reversed = True

sketch6 = body.newObject("Sketcher::SketchObject", "Sketch005")
sketch6.AttachmentSupport = (doc.getObject("XZ_Plane"), [""])
sketch6.MapMode = "FlatFace"
sketch6.AttachmentOffset = App.Placement(V(0, 0, -700), App.Rotation())
sketch6.addGeometry(Part.LineSegment(V(-9.797035, -18.8, 0), V(-9.797035, -13.197035, 0)), False)
sketch6.addGeometry(Part.ArcOfCircle(Part.Circle(V(-13.197035, -13.197035, 0), V(0, 0, 1), 3.4), math.radians(0), math.radians(90)), False)
sketch6.addGeometry(Part.LineSegment(V(-13.197035, -9.797035, 0), V(-18.8, -9.797035, 0)), False)
sketch6.addGeometry(Part.LineSegment(V(-18.8, -9.797035, 0), V(-23.561072, -4.95, 0)), False)
sketch6.addGeometry(Part.LineSegment(V(-23.561072, -4.95, 0), V(-28, -4.95, 0)), False)
sketch6.addGeometry(Part.LineSegment(V(-28, -4.95, 0), V(-28, 4.95, 0)), False)
sketch6.addGeometry(Part.LineSegment(V(-28, 4.95, 0), V(-23.561072, 4.95, 0)), False)
sketch6.addGeometry(Part.LineSegment(V(-23.561072, 4.95, 0), V(-18.8, 9.797035, 0)), False)
sketch6.addGeometry(Part.LineSegment(V(-18.8, 9.797035, 0), V(-13.197035, 9.797035, 0)), False)
sketch6.addGeometry(Part.ArcOfCircle(Part.Circle(V(-13.197035, 13.197035, 0), V(0, 0, 1), 3.4), math.radians(-90), math.radians(0)), False)
sketch6.addGeometry(Part.LineSegment(V(-9.797035, 13.197035, 0), V(-9.797035, 18.8, 0)), False)
sketch6.addGeometry(Part.LineSegment(V(-9.797035, 18.8, 0), V(-4.95, 23.561072, 0)), False)
sketch6.addGeometry(Part.LineSegment(V(-4.95, 23.561072, 0), V(-4.95, 28, 0)), False)
sketch6.addGeometry(Part.LineSegment(V(-4.95, 28, 0), V(4.95, 28, 0)), False)
sketch6.addGeometry(Part.LineSegment(V(4.95, 28, 0), V(4.95, 23.561072, 0)), False)
sketch6.addGeometry(Part.LineSegment(V(4.95, 23.561072, 0), V(9.797035, 18.8, 0)), False)
sketch6.addGeometry(Part.LineSegment(V(9.797035, 18.8, 0), V(9.797035, 13.197035, 0)), False)
sketch6.addGeometry(Part.ArcOfCircle(Part.Circle(V(13.197035, 13.197035, 0), V(0, 0, 1), 3.4), math.radians(180), math.radians(270)), False)
sketch6.addGeometry(Part.LineSegment(V(13.197035, 9.797035, 0), V(18.8, 9.797035, 0)), False)
sketch6.addGeometry(Part.LineSegment(V(18.8, 9.797035, 0), V(23.561072, 4.95, 0)), False)
sketch6.addGeometry(Part.LineSegment(V(23.561072, 4.95, 0), V(28, 4.95, 0)), False)
sketch6.addGeometry(Part.LineSegment(V(28, 4.95, 0), V(28, -4.95, 0)), False)
sketch6.addGeometry(Part.LineSegment(V(28, -4.95, 0), V(23.561072, -4.95, 0)), False)
sketch6.addGeometry(Part.LineSegment(V(23.561072, -4.95, 0), V(18.8, -9.797035, 0)), False)
sketch6.addGeometry(Part.LineSegment(V(18.8, -9.797035, 0), V(13.197035, -9.797035, 0)), False)
sketch6.addGeometry(Part.ArcOfCircle(Part.Circle(V(13.197035, -13.197035, 0), V(0, 0, 1), 3.4), math.radians(90), math.radians(180)), False)
sketch6.addGeometry(Part.LineSegment(V(9.797035, -13.197035, 0), V(9.797035, -18.8, 0)), False)
sketch6.addGeometry(Part.LineSegment(V(9.797035, -18.8, 0), V(4.95, -23.561072, 0)), False)
sketch6.addGeometry(Part.LineSegment(V(4.95, -23.561072, 0), V(4.95, -28, 0)), False)
sketch6.addGeometry(Part.LineSegment(V(4.95, -28, 0), V(-4.95, -28, 0)), False)
sketch6.addGeometry(Part.LineSegment(V(-4.95, -28, 0), V(-4.95, -23.561072, 0)), False)
sketch6.addGeometry(Part.LineSegment(V(-4.95, -23.561072, 0), V(-9.797035, -18.8, 0)), False)
sketch6.addGeometry(Part.Circle(V(-14.298518, -14.298518, 0), V(0, 0, 1), 3.4), False)
sketch6.addGeometry(Part.Circle(V(14.298518, -14.298518, 0), V(0, 0, 1), 3.4), False)
sketch6.addGeometry(Part.LineSegment(V(27.5, -28, 0), V(24.9, -28, 0)), False)
sketch6.addGeometry(Part.ArcOfCircle(Part.Circle(V(24.9, -27.5, 0), V(0, 0, 1), 0.5), math.radians(180), math.radians(270)), False)
sketch6.addGeometry(Part.LineSegment(V(24.4, -27.5, 0), V(24.4, -24.9, 0)), False)
sketch6.addGeometry(Part.ArcOfCircle(Part.Circle(V(24.9, -24.9, 0), V(0, 0, 1), 0.5), math.radians(90), math.radians(180)), False)
sketch6.addGeometry(Part.LineSegment(V(24.9, -24.4, 0), V(27.5, -24.4, 0)), False)
sketch6.addGeometry(Part.ArcOfCircle(Part.Circle(V(27.5, -24.9, 0), V(0, 0, 1), 0.5), math.radians(0), math.radians(90)), False)
sketch6.addGeometry(Part.LineSegment(V(28, -24.9, 0), V(28, -27.5, 0)), False)
sketch6.addGeometry(Part.ArcOfCircle(Part.Circle(V(27.5, -27.5, 0), V(0, 0, 1), 0.5), math.radians(-90), math.radians(0)), False)
sketch6.addGeometry(Part.LineSegment(V(-28, -27.5, 0), V(-28, -24.9, 0)), False)
sketch6.addGeometry(Part.ArcOfCircle(Part.Circle(V(-27.5, -24.9, 0), V(0, 0, 1), 0.5), math.radians(90), math.radians(180)), False)
sketch6.addGeometry(Part.LineSegment(V(-27.5, -24.4, 0), V(-24.9, -24.4, 0)), False)
sketch6.addGeometry(Part.ArcOfCircle(Part.Circle(V(-24.9, -24.9, 0), V(0, 0, 1), 0.5), math.radians(0), math.radians(90)), False)
sketch6.addGeometry(Part.LineSegment(V(-24.4, -24.9, 0), V(-24.4, -27.5, 0)), False)
sketch6.addGeometry(Part.ArcOfCircle(Part.Circle(V(-24.9, -27.5, 0), V(0, 0, 1), 0.5), math.radians(-90), math.radians(0)), False)
sketch6.addGeometry(Part.LineSegment(V(-24.9, -28, 0), V(-27.5, -28, 0)), False)
sketch6.addGeometry(Part.ArcOfCircle(Part.Circle(V(-27.5, -27.5, 0), V(0, 0, 1), 0.5), math.radians(180), math.radians(270)), False)
sketch6.addGeometry(Part.LineSegment(V(-27.5, 28, 0), V(-24.9, 28, 0)), False)
sketch6.addGeometry(Part.ArcOfCircle(Part.Circle(V(-24.9, 27.5, 0), V(0, 0, 1), 0.5), math.radians(0), math.radians(90)), False)
sketch6.addGeometry(Part.LineSegment(V(-24.4, 27.5, 0), V(-24.4, 24.9, 0)), False)
sketch6.addGeometry(Part.ArcOfCircle(Part.Circle(V(-24.9, 24.9, 0), V(0, 0, 1), 0.5), math.radians(-90), math.radians(0)), False)
sketch6.addGeometry(Part.LineSegment(V(-24.9, 24.4, 0), V(-27.5, 24.4, 0)), False)
sketch6.addGeometry(Part.ArcOfCircle(Part.Circle(V(-27.5, 24.9, 0), V(0, 0, 1), 0.5), math.radians(180), math.radians(270)), False)
sketch6.addGeometry(Part.LineSegment(V(-28, 24.9, 0), V(-28, 27.5, 0)), False)
sketch6.addGeometry(Part.ArcOfCircle(Part.Circle(V(-27.5, 27.5, 0), V(0, 0, 1), 0.5), math.radians(90), math.radians(180)), False)
sketch6.addGeometry(Part.ArcOfCircle(Part.Circle(V(24.9, 24.9, 0), V(0, 0, 1), 0.5), math.radians(180), math.radians(270)), False)
sketch6.addGeometry(Part.LineSegment(V(24.4, 24.9, 0), V(24.4, 27.5, 0)), False)
sketch6.addGeometry(Part.ArcOfCircle(Part.Circle(V(24.9, 27.5, 0), V(0, 0, 1), 0.5), math.radians(90), math.radians(180)), False)
sketch6.addGeometry(Part.LineSegment(V(24.9, 28, 0), V(27.5, 28, 0)), False)
sketch6.addGeometry(Part.ArcOfCircle(Part.Circle(V(27.5, 27.5, 0), V(0, 0, 1), 0.5), math.radians(0), math.radians(90)), False)
sketch6.addGeometry(Part.LineSegment(V(28, 27.5, 0), V(28, 24.9, 0)), False)
sketch6.addGeometry(Part.ArcOfCircle(Part.Circle(V(27.5, 24.9, 0), V(0, 0, 1), 0.5), math.radians(-90), math.radians(0)), False)
sketch6.addGeometry(Part.LineSegment(V(27.5, 24.4, 0), V(24.9, 24.4, 0)), False)
sketch6.addGeometry(Part.Circle(V(-14.298518, 14.298518, 0), V(0, 0, 1), 3.4), False)
sketch6.addGeometry(Part.Circle(V(14.298518, 14.298518, 0), V(0, 0, 1), 3.4), False)
sketch6.addConstraint(Sketcher.Constraint("Tangent", 0, 2, 1, 1))
sketch6.addConstraint(Sketcher.Constraint("Tangent", 1, 2, 2, 1))
sketch6.addConstraint(Sketcher.Constraint("Coincident", 2, 2, 3, 1))
sketch6.addConstraint(Sketcher.Constraint("Coincident", 3, 2, 4, 1))
sketch6.addConstraint(Sketcher.Constraint("Coincident", 4, 2, 5, 1))
sketch6.addConstraint(Sketcher.Constraint("Coincident", 5, 2, 6, 1))
sketch6.addConstraint(Sketcher.Constraint("Coincident", 6, 2, 7, 1))
sketch6.addConstraint(Sketcher.Constraint("Coincident", 7, 2, 8, 1))
sketch6.addConstraint(Sketcher.Constraint("Tangent", 8, 2, 9, 1))
sketch6.addConstraint(Sketcher.Constraint("Tangent", 9, 2, 10, 1))
sketch6.addConstraint(Sketcher.Constraint("Coincident", 10, 2, 11, 1))
sketch6.addConstraint(Sketcher.Constraint("Coincident", 11, 2, 12, 1))
sketch6.addConstraint(Sketcher.Constraint("Coincident", 12, 2, 13, 1))
sketch6.addConstraint(Sketcher.Constraint("Coincident", 13, 2, 14, 1))
sketch6.addConstraint(Sketcher.Constraint("Coincident", 14, 2, 15, 1))
sketch6.addConstraint(Sketcher.Constraint("Coincident", 15, 2, 16, 1))
sketch6.addConstraint(Sketcher.Constraint("Tangent", 16, 2, 17, 1))
sketch6.addConstraint(Sketcher.Constraint("Tangent", 17, 2, 18, 1))
sketch6.addConstraint(Sketcher.Constraint("Coincident", 18, 2, 19, 1))
sketch6.addConstraint(Sketcher.Constraint("Coincident", 19, 2, 20, 1))
sketch6.addConstraint(Sketcher.Constraint("Coincident", 20, 2, 21, 1))
sketch6.addConstraint(Sketcher.Constraint("Coincident", 21, 2, 22, 1))
sketch6.addConstraint(Sketcher.Constraint("Coincident", 22, 2, 23, 1))
sketch6.addConstraint(Sketcher.Constraint("Coincident", 23, 2, 24, 1))
sketch6.addConstraint(Sketcher.Constraint("Tangent", 24, 2, 25, 1))
sketch6.addConstraint(Sketcher.Constraint("Tangent", 25, 2, 26, 1))
sketch6.addConstraint(Sketcher.Constraint("Coincident", 26, 2, 27, 1))
sketch6.addConstraint(Sketcher.Constraint("Coincident", 27, 2, 28, 1))
sketch6.addConstraint(Sketcher.Constraint("Coincident", 28, 2, 29, 1))
sketch6.addConstraint(Sketcher.Constraint("Coincident", 29, 2, 30, 1))
sketch6.addConstraint(Sketcher.Constraint("Coincident", 30, 2, 31, 1))
sketch6.addConstraint(Sketcher.Constraint("Coincident", 31, 2, 0, 1))
sketch6.addConstraint(Sketcher.Constraint("Tangent", 34, 2, 35, 2))
sketch6.addConstraint(Sketcher.Constraint("Tangent", 35, 1, 36, 1))
sketch6.addConstraint(Sketcher.Constraint("Tangent", 36, 2, 37, 2))
sketch6.addConstraint(Sketcher.Constraint("Tangent", 37, 1, 38, 1))
sketch6.addConstraint(Sketcher.Constraint("Tangent", 38, 2, 39, 2))
sketch6.addConstraint(Sketcher.Constraint("Tangent", 39, 1, 40, 1))
sketch6.addConstraint(Sketcher.Constraint("Tangent", 40, 2, 41, 2))
sketch6.addConstraint(Sketcher.Constraint("Tangent", 41, 1, 34, 1))
sketch6.addConstraint(Sketcher.Constraint("Tangent", 42, 2, 43, 2))
sketch6.addConstraint(Sketcher.Constraint("Tangent", 43, 1, 44, 1))
sketch6.addConstraint(Sketcher.Constraint("Tangent", 44, 2, 45, 2))
sketch6.addConstraint(Sketcher.Constraint("Tangent", 45, 1, 46, 1))
sketch6.addConstraint(Sketcher.Constraint("Tangent", 46, 2, 47, 2))
sketch6.addConstraint(Sketcher.Constraint("Tangent", 47, 1, 48, 1))
sketch6.addConstraint(Sketcher.Constraint("Tangent", 48, 2, 49, 2))
sketch6.addConstraint(Sketcher.Constraint("Tangent", 49, 1, 42, 1))
sketch6.addConstraint(Sketcher.Constraint("Tangent", 50, 2, 51, 2))
sketch6.addConstraint(Sketcher.Constraint("Tangent", 51, 1, 52, 1))
sketch6.addConstraint(Sketcher.Constraint("Tangent", 52, 2, 53, 2))
sketch6.addConstraint(Sketcher.Constraint("Tangent", 53, 1, 54, 1))
sketch6.addConstraint(Sketcher.Constraint("Tangent", 54, 2, 55, 2))
sketch6.addConstraint(Sketcher.Constraint("Tangent", 55, 1, 56, 1))
sketch6.addConstraint(Sketcher.Constraint("Tangent", 56, 2, 57, 2))
sketch6.addConstraint(Sketcher.Constraint("Tangent", 57, 1, 50, 1))
sketch6.addConstraint(Sketcher.Constraint("Tangent", 58, 1, 59, 1))
sketch6.addConstraint(Sketcher.Constraint("Tangent", 59, 2, 60, 2))
sketch6.addConstraint(Sketcher.Constraint("Tangent", 60, 1, 61, 1))
sketch6.addConstraint(Sketcher.Constraint("Tangent", 61, 2, 62, 2))
sketch6.addConstraint(Sketcher.Constraint("Tangent", 62, 1, 63, 1))
sketch6.addConstraint(Sketcher.Constraint("Tangent", 63, 2, 64, 2))
sketch6.addConstraint(Sketcher.Constraint("Tangent", 64, 1, 65, 1))
sketch6.addConstraint(Sketcher.Constraint("Tangent", 65, 2, 58, 2))
sketch6.addConstraint(Sketcher.Constraint("Vertical", 0))
sketch6.addConstraint(Sketcher.Constraint("Horizontal", 2))
sketch6.addConstraint(Sketcher.Constraint("Horizontal", 4))
sketch6.addConstraint(Sketcher.Constraint("Vertical", 5))
sketch6.addConstraint(Sketcher.Constraint("Horizontal", 6))
sketch6.addConstraint(Sketcher.Constraint("Horizontal", 8))
sketch6.addConstraint(Sketcher.Constraint("Vertical", 10))
sketch6.addConstraint(Sketcher.Constraint("Vertical", 12))
sketch6.addConstraint(Sketcher.Constraint("Horizontal", 13))
sketch6.addConstraint(Sketcher.Constraint("Vertical", 14))
sketch6.addConstraint(Sketcher.Constraint("Vertical", 16))
sketch6.addConstraint(Sketcher.Constraint("Horizontal", 18))
sketch6.addConstraint(Sketcher.Constraint("Horizontal", 20))
sketch6.addConstraint(Sketcher.Constraint("Vertical", 21))
sketch6.addConstraint(Sketcher.Constraint("Horizontal", 22))
sketch6.addConstraint(Sketcher.Constraint("Horizontal", 24))
sketch6.addConstraint(Sketcher.Constraint("Vertical", 26))
sketch6.addConstraint(Sketcher.Constraint("Vertical", 28))
sketch6.addConstraint(Sketcher.Constraint("Horizontal", 29))
sketch6.addConstraint(Sketcher.Constraint("Vertical", 30))
sketch6.addConstraint(Sketcher.Constraint("Horizontal", 34))
sketch6.addConstraint(Sketcher.Constraint("Vertical", 36))
sketch6.addConstraint(Sketcher.Constraint("Horizontal", 38))
sketch6.addConstraint(Sketcher.Constraint("Vertical", 40))
sketch6.addConstraint(Sketcher.Constraint("Vertical", 42))
sketch6.addConstraint(Sketcher.Constraint("Horizontal", 44))
sketch6.addConstraint(Sketcher.Constraint("Vertical", 46))
sketch6.addConstraint(Sketcher.Constraint("Horizontal", 48))
sketch6.addConstraint(Sketcher.Constraint("Horizontal", 50))
sketch6.addConstraint(Sketcher.Constraint("Vertical", 52))
sketch6.addConstraint(Sketcher.Constraint("Horizontal", 54))
sketch6.addConstraint(Sketcher.Constraint("Vertical", 56))
sketch6.addConstraint(Sketcher.Constraint("Vertical", 59))
sketch6.addConstraint(Sketcher.Constraint("Horizontal", 61))
sketch6.addConstraint(Sketcher.Constraint("Vertical", 63))
sketch6.addConstraint(Sketcher.Constraint("Horizontal", 65))
sketch6.addConstraint(Sketcher.Constraint("Equal", 1, 9))
sketch6.addConstraint(Sketcher.Constraint("Equal", 9, 17))
sketch6.addConstraint(Sketcher.Constraint("Equal", 17, 25))
sketch6.addConstraint(Sketcher.Constraint("Equal", 25, 32))
sketch6.addConstraint(Sketcher.Constraint("Equal", 32, 33))
sketch6.addConstraint(Sketcher.Constraint("Equal", 35, 37))
sketch6.addConstraint(Sketcher.Constraint("Equal", 37, 39))
sketch6.addConstraint(Sketcher.Constraint("Equal", 39, 41))
sketch6.addConstraint(Sketcher.Constraint("Equal", 41, 43))
sketch6.addConstraint(Sketcher.Constraint("Equal", 43, 45))
sketch6.addConstraint(Sketcher.Constraint("Equal", 45, 47))
sketch6.addConstraint(Sketcher.Constraint("Equal", 47, 49))
sketch6.addConstraint(Sketcher.Constraint("Equal", 49, 51))
sketch6.addConstraint(Sketcher.Constraint("Equal", 51, 53))
sketch6.addConstraint(Sketcher.Constraint("Equal", 53, 55))
sketch6.addConstraint(Sketcher.Constraint("Equal", 55, 57))
sketch6.addConstraint(Sketcher.Constraint("Equal", 57, 58))
sketch6.addConstraint(Sketcher.Constraint("Equal", 58, 60))
sketch6.addConstraint(Sketcher.Constraint("Equal", 60, 62))
sketch6.addConstraint(Sketcher.Constraint("Equal", 62, 64))
sketch6.addConstraint(Sketcher.Constraint("Equal", 33, 66))
sketch6.addConstraint(Sketcher.Constraint("Equal", 66, 67))
sketch6.addConstraint(Sketcher.Constraint("Symmetric", 1, 3, 17, 3, -1, 1))
sketch6.addConstraint(Sketcher.Constraint("Symmetric", 9, 3, 25, 3, -1, 1))
sketch6.addConstraint(Sketcher.Constraint("Symmetric", 35, 3, 51, 3, -1, 1))
sketch6.addConstraint(Sketcher.Constraint("Symmetric", 39, 3, 55, 3, -1, 1))
sketch6.addConstraint(Sketcher.Constraint("Symmetric", 45, 3, 58, 3, -1, 1))
sketch6.addConstraint(Sketcher.Constraint("Symmetric", 49, 3, 62, 3, -1, 1))
sketch6.addConstraint(Sketcher.Constraint("Symmetric", 33, 3, 66, 3, -1, 1))
sketch6.addConstraint(Sketcher.Constraint("Symmetric", 32, 3, 67, 3, -1, 1))
sketch6.addConstraint(Sketcher.Constraint("Symmetric", 3, 2, 19, 2, -1, 1))
sketch6.addConstraint(Sketcher.Constraint("Symmetric", 5, 2, 21, 2, -1, 1))
sketch6.addConstraint(Sketcher.Constraint("Symmetric", 11, 2, 27, 2, -1, 1))
sketch6.addConstraint(Sketcher.Constraint("Symmetric", 13, 2, 29, 2, -1, 1))
sketch6.addConstraint(Sketcher.Constraint("Symmetric", 9, 3, 17, 3, -2))
sketch6.addConstraint(Sketcher.Constraint("Symmetric", 32, 3, 33, 3, -2))
sketch6.addConstraint(Sketcher.Constraint("Symmetric", 39, 3, 43, 3, -2))
sketch6.addConstraint(Sketcher.Constraint("Symmetric", 35, 3, 47, 3, -2))
sketch6.addConstraint(Sketcher.Constraint("Symmetric", 11, 2, 14, 2, -2))
sketch6.addConstraint(Sketcher.Constraint("Symmetric", 6, 2, 19, 2, -2))
sketch6.addConstraint(Sketcher.Constraint("Perpendicular", 3, 11))
sketch6.addConstraint(Sketcher.Constraint("Perpendicular", 7, 15))
sketch6.addConstraint(Sketcher.Constraint("Perpendicular", 11, 19))
sketch6.addConstraint(Sketcher.Constraint("Perpendicular", 15, 23))
sketch6.addConstraint(Sketcher.Constraint("Perpendicular", 19, 27))
sketch6.addConstraint(Sketcher.Constraint("Perpendicular", 23, 31))
sketch6.addConstraint(Sketcher.Constraint("Horizontal", 10, 2, 15, 2))
sketch6.addConstraint(Sketcher.Constraint("Horizontal", 27, 2, 30, 2))
sketch6.addConstraint(Sketcher.Constraint("Horizontal", 29, 2, 34, 2))
sketch6.addConstraint(Sketcher.Constraint("Vertical", 19, 2, 22, 2))
sketch6.addConstraint(Sketcher.Constraint("Vertical", 21, 2, 39, 1))
sketch6.addConstraint(Sketcher.Constraint("Equal", 24, 0))
sketch6.addConstraint(Sketcher.Constraint("Equal", 29, 5))
sketch6.addConstraint(Sketcher.Constraint("Equal", 22, 12))
sketch6.addConstraint(Sketcher.Constraint("Equal", 65, 36))
sketch6.addConstraint(Sketcher.Constraint("Equal", 7, 11))
sketch6.addConstraint(Sketcher.Constraint("Diameter", 32, 6.8))
sketch6.addConstraint(Sketcher.Constraint("Radius", 35, 0.5))
sketch6.addConstraint(Sketcher.Constraint("DistanceX", 13, 1, 13, 2, 9.9))
sketch6.addConstraint(Sketcher.Constraint("DistanceX", 34, 2, 34, 1, 2.6))
sketch6.addConstraint(Sketcher.Constraint("DistanceX", 4, 2, -1, 1, 28.0))
sketch6.addConstraint(Sketcher.Constraint("DistanceX", 2, 2, -1, 1, 18.8))
sketch6.addConstraint(Sketcher.Constraint("DistanceX", 4, 2, 4, 1, 4.438928))
sketch6.addConstraint(Sketcher.Constraint("Distance", 3, 6.794229))
sketch6.addConstraint(Sketcher.Constraint("DistanceX", 32, 3, -1, 1, 14.298518))
sketch6.addConstraint(Sketcher.Constraint("DistanceY", 32, 3, -1, 1, 14.298518))
pocket5 = body.newObject("PartDesign::Pocket", "Pocket004")
pocket5.Profile = sketch6
pocket5.Type = "ThroughAll"
pocket5.Reversed = True
doc.recompute()

fillet = body.newObject("PartDesign::Fillet", "Fillet")
fillet.Base = (pocket5, edges_at(pocket5, [
    (28, 350, 19.1),
    (28, 350, 10.9),
    (29, 350, 10.9),
    (29, 350, 9.9),
    (30, 350, 9.9),
    (30, 350, 20.1),
    (29, 350, 20.1),
    (29, 350, 19.1),
    (28, 350, -10.9),
    (28, 350, -19.1),
    (29, 350, -19.1),
    (29, 350, -20.1),
    (30, 350, -20.1),
    (30, 350, -9.9),
    (29, 350, -9.9),
    (29, 350, -10.9),
]))
fillet.Radius = 0.2
doc.recompute()

fillet2 = body.newObject("PartDesign::Fillet", "Fillet001")
fillet2.Base = (fillet, edges_at(fillet, [
    (19.1, 350, -28),
    (10.9, 350, -28),
    (10.9, 350, -29),
    (9.9, 350, -29),
    (9.9, 350, -30),
    (20.1, 350, -30),
    (20.1, 350, -29),
    (19.1, 350, -29),
    (-10.9, 350, -28),
    (-19.1, 350, -28),
    (-19.6, 700, -29),
    (-19.1, 350, -29),
    (-20.1, 700, -29.5),
    (-20.1, 350, -29),
    (-20.1, 350, -30),
    (-9.9, 350, -30),
    (-9.9, 350, -29),
    (-10.9, 350, -29),
    (-19.6, 0, -29),
    (-20.1, 0, -29.5),
]))
fillet2.Radius = 0.2
doc.recompute()

fillet3 = body.newObject("PartDesign::Fillet", "Fillet002")
fillet3.Base = (fillet2, edges_at(fillet2, [
    (-28, 350, -10.9),
    (-29, 350, -10.9),
    (-29, 350, -9.9),
    (-30, 350, -9.9),
    (-30, 350, -20.1),
    (-29, 350, -20.1),
    (-29, 350, -19.1),
    (-28, 350, 19.1),
    (-29, 350, 19.1),
    (-29, 350, 20.1),
    (-30, 350, 20.1),
    (-30, 350, 9.9),
    (-29, 350, 9.9),
    (-29, 350, 10.9),
]))
fillet3.Radius = 0.2
doc.recompute()

fillet4 = body.newObject("PartDesign::Fillet", "Fillet003")
fillet4.Base = (fillet3, edges_at(fillet3, [
    (-19.1, 350, 28),
    (-10.9, 350, 28),
    (-10.9, 350, 29),
    (-9.9, 350, 29),
    (-9.9, 350, 30),
    (-20.1, 350, 30),
    (-20.1, 350, 29),
    (-19.1, 350, 29),
    (10.9, 350, 28),
    (19.1, 350, 28),
    (19.1, 350, 29),
    (20.1, 350, 29),
    (20.1, 350, 30),
    (9.9, 350, 30),
    (9.9, 350, 29),
    (10.9, 350, 29),
]))
fillet4.Radius = 0.2

doc.recompute()
